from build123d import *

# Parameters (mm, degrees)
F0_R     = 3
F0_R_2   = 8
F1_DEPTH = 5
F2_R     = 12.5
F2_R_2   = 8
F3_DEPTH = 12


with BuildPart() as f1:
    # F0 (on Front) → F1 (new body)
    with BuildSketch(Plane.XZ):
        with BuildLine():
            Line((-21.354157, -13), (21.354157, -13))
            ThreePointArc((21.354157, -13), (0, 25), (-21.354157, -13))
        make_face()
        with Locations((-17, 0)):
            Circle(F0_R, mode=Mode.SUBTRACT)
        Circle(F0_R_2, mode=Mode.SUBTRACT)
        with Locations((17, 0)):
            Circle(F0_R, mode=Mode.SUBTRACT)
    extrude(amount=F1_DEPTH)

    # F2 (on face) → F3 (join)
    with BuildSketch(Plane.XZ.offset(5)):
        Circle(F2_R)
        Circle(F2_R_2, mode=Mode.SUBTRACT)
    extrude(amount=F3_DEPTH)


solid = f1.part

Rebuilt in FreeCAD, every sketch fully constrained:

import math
import FreeCAD as App
import Part
import Sketcher
from FreeCAD import Vector

doc = App.newDocument("Part")
body = doc.addObject("PartDesign::Body", "Body")

sketch1 = body.newObject("Sketcher::SketchObject", "Sketch")
sketch1.AttachmentSupport = (doc.getObject("XZ_Plane"), [""])
sketch1.MapMode = "FlatFace"
sketch1.addGeometry(Part.LineSegment(Vector(-21.4, -13, 0), Vector(21.4, -13, 0)), False)
sketch1.addGeometry(Part.ArcOfCircle(Part.Circle(Vector(0, 0, 0), Vector(0, 0, 1), 25), math.radians(-31), math.radians(211)), False)
sketch1.addGeometry(Part.Circle(Vector(-17, 0, 0), Vector(0, 0, 1), 3), False)
sketch1.addGeometry(Part.Circle(Vector(17, 0, 0), Vector(0, 0, 1), 3), False)
sketch1.addGeometry(Part.Circle(Vector(0, 0, 0), Vector(0, 0, 1), 8), False)
sketch1.addConstraint(Sketcher.Constraint("Coincident", 0, 1, 1, 2))
sketch1.addConstraint(Sketcher.Constraint("Coincident", 1, 1, 0, 2))
sketch1.addConstraint(Sketcher.Constraint("Horizontal", 0))
sketch1.addConstraint(Sketcher.Constraint("Coincident", 1, 3, -1, 1))
sketch1.addConstraint(Sketcher.Constraint("Coincident", 4, 3, -1, 1))
sketch1.addConstraint(Sketcher.Constraint("Equal", 2, 3))
sketch1.addConstraint(Sketcher.Constraint("Symmetric", 2, 3, 3, 3, -1, 1))
sketch1.addConstraint(Sketcher.Constraint("PointOnObject", 2, 3, -1))
sketch1.addConstraint(Sketcher.Constraint("Diameter", 2, 6.0))
sketch1.addConstraint(Sketcher.Constraint("Diameter", 4, 16.0))
sketch1.addConstraint(Sketcher.Constraint("Radius", 1, 25.0))
sketch1.addConstraint(Sketcher.Constraint("DistanceX", 2, 3, -1, 1, 17.0))
sketch1.addConstraint(Sketcher.Constraint("DistanceY", 0, 1, -1, 1, 13.0))
pad1 = body.newObject("PartDesign::Pad", "Pad")
pad1.Profile = sketch1
pad1.Length = 5

sketch2 = body.newObject("Sketcher::SketchObject", "Sketch001")
sketch2.AttachmentSupport = (doc.getObject("XZ_Plane"), [""])
sketch2.MapMode = "FlatFace"
sketch2.AttachmentOffset = App.Placement(Vector(0, 0, 5), App.Rotation())
sketch2.addGeometry(Part.Circle(Vector(0, 0, 0), Vector(0, 0, 1), 12), False)
sketch2.addGeometry(Part.Circle(Vector(0, 0, 0), Vector(0, 0, 1), 8), False)
sketch2.addConstraint(Sketcher.Constraint("Coincident", 0, 3, -1, 1))
sketch2.addConstraint(Sketcher.Constraint("Coincident", 1, 3, -1, 1))
sketch2.addConstraint(Sketcher.Constraint("Diameter", 0, 25.0))
sketch2.addConstraint(Sketcher.Constraint("Diameter", 1, 16.0))
pad2 = body.newObject("PartDesign::Pad", "Pad001")
pad2.Profile = sketch2
pad2.Length = 12

doc.recompute()
